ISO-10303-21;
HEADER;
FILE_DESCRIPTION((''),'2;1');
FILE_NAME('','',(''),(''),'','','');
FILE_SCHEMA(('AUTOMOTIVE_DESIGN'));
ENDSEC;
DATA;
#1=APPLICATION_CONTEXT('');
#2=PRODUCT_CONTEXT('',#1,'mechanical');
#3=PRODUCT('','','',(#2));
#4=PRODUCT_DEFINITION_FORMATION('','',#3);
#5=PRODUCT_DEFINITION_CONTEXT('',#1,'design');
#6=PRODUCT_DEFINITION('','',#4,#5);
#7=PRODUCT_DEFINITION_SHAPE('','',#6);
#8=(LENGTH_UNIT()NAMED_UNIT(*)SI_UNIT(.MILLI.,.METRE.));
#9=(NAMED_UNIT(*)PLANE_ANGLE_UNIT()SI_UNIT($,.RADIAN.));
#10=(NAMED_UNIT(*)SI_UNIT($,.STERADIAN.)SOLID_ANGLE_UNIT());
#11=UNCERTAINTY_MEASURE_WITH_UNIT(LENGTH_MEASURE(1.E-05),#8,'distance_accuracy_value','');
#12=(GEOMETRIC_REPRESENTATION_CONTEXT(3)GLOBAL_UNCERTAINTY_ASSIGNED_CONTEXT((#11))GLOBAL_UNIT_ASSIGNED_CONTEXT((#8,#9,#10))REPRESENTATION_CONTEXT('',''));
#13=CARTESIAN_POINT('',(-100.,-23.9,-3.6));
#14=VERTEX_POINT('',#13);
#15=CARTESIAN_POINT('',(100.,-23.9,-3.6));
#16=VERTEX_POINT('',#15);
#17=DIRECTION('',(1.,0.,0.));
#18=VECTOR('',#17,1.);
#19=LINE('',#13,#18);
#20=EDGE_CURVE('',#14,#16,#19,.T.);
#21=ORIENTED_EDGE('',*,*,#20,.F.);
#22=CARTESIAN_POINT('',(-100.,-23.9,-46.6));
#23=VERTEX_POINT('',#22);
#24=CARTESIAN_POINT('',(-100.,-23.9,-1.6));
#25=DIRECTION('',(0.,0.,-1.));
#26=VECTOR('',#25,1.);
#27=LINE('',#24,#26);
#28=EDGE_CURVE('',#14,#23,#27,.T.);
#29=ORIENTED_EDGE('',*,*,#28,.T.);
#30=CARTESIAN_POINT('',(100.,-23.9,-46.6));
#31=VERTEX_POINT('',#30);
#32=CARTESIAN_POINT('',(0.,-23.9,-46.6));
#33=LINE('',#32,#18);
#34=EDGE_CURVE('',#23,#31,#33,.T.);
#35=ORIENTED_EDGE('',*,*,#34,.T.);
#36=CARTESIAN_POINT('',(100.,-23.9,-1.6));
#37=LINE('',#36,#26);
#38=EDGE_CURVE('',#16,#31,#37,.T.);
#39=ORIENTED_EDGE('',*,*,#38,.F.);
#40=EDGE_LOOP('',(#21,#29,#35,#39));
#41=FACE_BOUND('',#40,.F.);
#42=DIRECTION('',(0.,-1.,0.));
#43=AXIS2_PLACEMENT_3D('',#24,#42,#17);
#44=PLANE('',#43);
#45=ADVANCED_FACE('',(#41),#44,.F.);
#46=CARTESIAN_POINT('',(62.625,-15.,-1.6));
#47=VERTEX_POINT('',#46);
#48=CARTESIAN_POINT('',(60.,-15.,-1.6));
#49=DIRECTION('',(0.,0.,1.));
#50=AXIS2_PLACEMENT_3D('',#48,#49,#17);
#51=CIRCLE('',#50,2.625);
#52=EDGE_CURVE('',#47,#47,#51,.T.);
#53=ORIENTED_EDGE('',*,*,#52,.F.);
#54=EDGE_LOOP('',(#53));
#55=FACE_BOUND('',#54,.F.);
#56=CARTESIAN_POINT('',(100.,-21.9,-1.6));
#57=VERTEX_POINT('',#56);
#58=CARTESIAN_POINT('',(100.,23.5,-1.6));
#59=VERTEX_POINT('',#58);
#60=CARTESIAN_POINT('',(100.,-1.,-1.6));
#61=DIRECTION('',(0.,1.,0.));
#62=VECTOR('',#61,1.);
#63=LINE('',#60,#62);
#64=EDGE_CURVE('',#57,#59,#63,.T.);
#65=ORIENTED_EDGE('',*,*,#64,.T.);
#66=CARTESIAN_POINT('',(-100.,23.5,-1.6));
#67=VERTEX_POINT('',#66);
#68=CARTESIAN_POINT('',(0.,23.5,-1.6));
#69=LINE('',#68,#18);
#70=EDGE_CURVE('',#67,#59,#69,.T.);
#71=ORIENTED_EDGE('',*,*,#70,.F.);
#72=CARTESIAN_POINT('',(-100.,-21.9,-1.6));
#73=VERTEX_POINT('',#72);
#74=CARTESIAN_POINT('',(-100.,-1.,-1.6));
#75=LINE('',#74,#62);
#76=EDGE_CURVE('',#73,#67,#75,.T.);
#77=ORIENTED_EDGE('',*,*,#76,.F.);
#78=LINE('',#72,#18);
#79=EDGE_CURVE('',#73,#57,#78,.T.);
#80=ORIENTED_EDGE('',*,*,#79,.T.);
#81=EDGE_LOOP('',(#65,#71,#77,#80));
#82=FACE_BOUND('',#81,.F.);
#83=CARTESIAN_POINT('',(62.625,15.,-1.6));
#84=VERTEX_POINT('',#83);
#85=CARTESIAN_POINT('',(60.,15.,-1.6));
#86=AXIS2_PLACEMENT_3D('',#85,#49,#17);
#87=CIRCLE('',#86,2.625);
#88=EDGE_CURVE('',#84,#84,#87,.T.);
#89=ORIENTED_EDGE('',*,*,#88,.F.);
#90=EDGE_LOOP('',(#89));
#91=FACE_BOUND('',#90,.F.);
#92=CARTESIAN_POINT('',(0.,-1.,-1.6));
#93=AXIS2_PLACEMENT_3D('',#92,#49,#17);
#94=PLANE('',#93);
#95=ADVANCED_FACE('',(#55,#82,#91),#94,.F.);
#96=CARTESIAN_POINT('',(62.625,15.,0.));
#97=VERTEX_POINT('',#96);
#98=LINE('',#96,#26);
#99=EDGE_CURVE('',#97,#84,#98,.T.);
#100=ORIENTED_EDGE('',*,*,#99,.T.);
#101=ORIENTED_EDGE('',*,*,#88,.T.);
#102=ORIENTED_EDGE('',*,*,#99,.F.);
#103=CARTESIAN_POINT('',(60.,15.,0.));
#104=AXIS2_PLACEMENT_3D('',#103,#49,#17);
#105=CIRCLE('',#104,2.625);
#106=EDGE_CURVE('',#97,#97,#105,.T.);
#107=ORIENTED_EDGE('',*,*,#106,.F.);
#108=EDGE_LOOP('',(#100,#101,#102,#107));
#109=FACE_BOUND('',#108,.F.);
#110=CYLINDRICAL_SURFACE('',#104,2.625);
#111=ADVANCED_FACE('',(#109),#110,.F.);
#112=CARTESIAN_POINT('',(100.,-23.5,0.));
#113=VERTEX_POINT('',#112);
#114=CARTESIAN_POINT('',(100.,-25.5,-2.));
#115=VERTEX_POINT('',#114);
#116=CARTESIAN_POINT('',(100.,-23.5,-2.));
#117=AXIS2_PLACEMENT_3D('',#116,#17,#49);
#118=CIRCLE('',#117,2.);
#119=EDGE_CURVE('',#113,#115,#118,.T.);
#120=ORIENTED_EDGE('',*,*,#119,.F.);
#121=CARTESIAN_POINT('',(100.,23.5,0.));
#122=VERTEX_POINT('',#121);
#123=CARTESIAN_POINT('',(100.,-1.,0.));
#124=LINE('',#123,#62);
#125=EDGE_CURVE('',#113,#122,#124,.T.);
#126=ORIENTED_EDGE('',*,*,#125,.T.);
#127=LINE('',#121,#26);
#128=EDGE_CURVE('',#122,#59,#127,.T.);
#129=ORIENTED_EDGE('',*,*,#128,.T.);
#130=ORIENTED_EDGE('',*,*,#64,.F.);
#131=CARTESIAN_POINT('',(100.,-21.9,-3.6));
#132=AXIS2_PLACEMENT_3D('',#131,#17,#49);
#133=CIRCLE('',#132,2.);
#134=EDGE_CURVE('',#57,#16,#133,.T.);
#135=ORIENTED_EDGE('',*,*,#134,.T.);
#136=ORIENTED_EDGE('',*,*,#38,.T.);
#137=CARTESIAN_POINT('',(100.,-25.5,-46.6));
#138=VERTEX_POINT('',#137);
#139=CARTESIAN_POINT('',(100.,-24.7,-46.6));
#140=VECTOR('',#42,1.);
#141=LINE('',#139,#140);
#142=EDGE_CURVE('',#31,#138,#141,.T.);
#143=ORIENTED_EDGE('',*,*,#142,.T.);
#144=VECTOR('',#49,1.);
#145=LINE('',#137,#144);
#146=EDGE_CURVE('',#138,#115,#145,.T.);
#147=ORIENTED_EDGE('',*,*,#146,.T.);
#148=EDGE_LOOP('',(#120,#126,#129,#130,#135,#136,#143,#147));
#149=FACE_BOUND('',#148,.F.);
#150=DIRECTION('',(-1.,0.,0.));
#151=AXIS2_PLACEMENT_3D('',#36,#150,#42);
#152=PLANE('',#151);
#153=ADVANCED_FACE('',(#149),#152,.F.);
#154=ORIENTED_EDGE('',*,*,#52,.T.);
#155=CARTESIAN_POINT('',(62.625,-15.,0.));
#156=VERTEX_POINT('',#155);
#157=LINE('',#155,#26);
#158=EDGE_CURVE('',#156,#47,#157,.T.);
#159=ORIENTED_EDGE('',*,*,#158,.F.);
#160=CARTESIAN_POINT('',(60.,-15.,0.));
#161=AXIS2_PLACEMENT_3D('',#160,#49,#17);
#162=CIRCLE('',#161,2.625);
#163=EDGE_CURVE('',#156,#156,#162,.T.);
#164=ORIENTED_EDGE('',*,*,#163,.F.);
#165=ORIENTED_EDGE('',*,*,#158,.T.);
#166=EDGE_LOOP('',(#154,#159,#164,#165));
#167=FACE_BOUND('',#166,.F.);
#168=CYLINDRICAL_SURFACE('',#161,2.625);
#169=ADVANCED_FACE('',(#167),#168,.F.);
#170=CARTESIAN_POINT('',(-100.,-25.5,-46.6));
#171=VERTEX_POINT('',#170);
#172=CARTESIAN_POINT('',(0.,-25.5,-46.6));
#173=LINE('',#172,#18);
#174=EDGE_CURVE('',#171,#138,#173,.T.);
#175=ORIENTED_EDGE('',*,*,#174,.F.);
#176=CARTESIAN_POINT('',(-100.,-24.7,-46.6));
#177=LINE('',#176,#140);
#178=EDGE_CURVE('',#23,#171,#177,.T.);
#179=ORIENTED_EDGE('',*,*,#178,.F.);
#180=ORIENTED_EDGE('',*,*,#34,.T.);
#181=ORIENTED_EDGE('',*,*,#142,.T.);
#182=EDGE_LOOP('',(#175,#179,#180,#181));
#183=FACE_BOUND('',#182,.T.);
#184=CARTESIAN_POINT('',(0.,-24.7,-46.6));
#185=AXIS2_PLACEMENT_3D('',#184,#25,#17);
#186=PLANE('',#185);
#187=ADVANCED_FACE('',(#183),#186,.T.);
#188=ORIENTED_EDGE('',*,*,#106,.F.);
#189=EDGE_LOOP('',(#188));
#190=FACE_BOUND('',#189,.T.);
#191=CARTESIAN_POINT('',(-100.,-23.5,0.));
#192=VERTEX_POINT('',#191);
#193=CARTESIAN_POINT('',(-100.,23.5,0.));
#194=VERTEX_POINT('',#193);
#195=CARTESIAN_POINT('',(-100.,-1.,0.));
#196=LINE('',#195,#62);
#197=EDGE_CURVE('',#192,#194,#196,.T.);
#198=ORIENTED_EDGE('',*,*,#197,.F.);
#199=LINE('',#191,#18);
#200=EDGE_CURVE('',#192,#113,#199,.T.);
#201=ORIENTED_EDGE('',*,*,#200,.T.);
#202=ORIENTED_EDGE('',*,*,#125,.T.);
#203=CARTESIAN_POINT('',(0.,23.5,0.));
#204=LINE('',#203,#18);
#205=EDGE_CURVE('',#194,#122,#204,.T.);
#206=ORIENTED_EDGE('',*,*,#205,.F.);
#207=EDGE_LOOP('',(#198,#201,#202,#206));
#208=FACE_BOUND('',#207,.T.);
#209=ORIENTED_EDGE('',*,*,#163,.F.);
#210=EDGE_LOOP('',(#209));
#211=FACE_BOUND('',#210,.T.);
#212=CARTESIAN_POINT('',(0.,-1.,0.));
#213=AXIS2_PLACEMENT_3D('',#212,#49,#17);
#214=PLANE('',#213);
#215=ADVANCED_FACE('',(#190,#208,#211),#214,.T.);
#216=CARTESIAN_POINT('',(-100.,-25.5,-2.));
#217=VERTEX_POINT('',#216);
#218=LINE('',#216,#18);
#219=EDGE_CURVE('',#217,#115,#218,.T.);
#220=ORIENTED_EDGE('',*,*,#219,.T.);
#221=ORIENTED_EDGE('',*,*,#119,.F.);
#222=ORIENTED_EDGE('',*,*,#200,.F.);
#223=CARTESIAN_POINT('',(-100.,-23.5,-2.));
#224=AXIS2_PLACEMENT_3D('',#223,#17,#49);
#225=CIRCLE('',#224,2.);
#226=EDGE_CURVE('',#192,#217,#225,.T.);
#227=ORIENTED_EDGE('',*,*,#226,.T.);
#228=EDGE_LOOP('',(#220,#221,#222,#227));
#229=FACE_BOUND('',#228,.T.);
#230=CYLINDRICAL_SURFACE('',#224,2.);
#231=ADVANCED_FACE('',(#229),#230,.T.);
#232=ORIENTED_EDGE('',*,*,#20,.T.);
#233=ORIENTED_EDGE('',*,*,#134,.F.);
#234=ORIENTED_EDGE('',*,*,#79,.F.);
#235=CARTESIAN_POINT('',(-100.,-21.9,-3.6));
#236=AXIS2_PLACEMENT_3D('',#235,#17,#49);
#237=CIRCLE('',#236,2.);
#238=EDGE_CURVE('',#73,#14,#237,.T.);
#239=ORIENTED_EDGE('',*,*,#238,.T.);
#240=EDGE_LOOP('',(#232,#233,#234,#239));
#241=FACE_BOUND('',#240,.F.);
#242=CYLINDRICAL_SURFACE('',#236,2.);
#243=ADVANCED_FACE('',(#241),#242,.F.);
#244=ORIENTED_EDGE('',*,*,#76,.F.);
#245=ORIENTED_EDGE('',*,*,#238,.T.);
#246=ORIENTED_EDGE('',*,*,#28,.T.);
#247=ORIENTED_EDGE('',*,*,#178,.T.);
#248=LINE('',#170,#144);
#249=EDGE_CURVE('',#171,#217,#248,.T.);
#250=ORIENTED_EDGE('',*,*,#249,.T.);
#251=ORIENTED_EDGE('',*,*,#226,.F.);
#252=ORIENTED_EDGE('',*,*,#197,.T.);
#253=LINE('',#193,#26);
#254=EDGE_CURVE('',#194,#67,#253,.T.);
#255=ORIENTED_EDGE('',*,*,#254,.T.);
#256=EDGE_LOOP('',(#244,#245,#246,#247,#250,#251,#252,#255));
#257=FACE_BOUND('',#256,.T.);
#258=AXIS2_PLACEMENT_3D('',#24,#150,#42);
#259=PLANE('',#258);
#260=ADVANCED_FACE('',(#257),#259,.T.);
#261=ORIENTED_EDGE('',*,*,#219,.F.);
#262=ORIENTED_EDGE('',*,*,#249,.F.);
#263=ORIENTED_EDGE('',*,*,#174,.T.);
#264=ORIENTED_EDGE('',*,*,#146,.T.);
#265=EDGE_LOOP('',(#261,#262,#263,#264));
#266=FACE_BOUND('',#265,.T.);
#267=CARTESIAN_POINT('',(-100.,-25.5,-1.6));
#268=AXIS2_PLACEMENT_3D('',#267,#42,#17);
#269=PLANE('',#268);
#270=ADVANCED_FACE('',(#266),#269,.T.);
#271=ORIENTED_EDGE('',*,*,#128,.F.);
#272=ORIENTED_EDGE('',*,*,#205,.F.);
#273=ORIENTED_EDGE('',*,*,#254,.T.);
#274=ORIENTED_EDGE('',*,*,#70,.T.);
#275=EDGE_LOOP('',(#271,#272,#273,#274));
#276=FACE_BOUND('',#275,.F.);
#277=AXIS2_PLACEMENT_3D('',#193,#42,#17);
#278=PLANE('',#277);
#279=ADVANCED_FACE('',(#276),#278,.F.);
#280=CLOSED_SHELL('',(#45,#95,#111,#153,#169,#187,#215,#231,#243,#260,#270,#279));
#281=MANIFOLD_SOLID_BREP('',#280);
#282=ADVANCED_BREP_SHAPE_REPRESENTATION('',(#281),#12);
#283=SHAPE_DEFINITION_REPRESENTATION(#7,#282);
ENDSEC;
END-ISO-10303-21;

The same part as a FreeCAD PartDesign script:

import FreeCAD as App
import Part
import Sketcher


def edges_at(feature, points):
    """Names of the edges that pass closest to the given points."""
    edges = feature.Shape.Edges
    near = lambda p: min(range(len(edges)), key=lambda i: edges[i].distToShape(Part.Vertex(*p))[0])
    return sorted({f"Edge{near(p) + 1}" for p in points})


def add_polygon(sketch, points):
    """Adds a closed chain of lines whose ends are joined by coincident constraints."""
    first, n = sketch.GeometryCount, len(points)
    for a, b in zip(points, points[1:] + points[:1]):
        sketch.addGeometry(Part.LineSegment(App.Vector(*a, 0), App.Vector(*b, 0)), False)
    for i in range(n):
        sketch.addConstraint(Sketcher.Constraint("Coincident", first + i, 2, first + (i + 1) % n, 1))

doc = App.newDocument("Part")
body = doc.addObject("PartDesign::Body", "Body")

# Sketch on XY plane
sketch1 = body.newObject("Sketcher::SketchObject", "Sketch")
sketch1.AttachmentSupport = (doc.getObject("XY_Plane"), [""])
sketch1.MapMode = "FlatFace"
add_polygon(sketch1, [(-100, 23.5), (-100, -25.5), (100, -25.5), (100, 23.5)])  # lines 0-3
sketch1.addGeometry(Part.Circle(App.Vector(60, -15, 0), App.Vector(0, 0, 1), 2.6), False)  # 4
sketch1.addGeometry(Part.Circle(App.Vector(60, 15, 0), App.Vector(0, 0, 1), 2.6), False)  # 5
sketch1.addConstraint(Sketcher.Constraint("Vertical", 0))
sketch1.addConstraint(Sketcher.Constraint("Horizontal", 1))
sketch1.addConstraint(Sketcher.Constraint("Vertical", 2))
sketch1.addConstraint(Sketcher.Constraint("Horizontal", 3))
sketch1.addConstraint(Sketcher.Constraint("Equal", 4, 5))
sketch1.addConstraint(Sketcher.Constraint("Symmetric", 4, 3, 5, 3, -1))
sketch1.addConstraint(Sketcher.Constraint("Diameter", 4, 5.25))
sketch1.addConstraint(Sketcher.Constraint("DistanceX", 1, 1, 1, 2, 200.0))
sketch1.addConstraint(Sketcher.Constraint("DistanceY", 0, 2, 0, 1, 49.0))
sketch1.addConstraint(Sketcher.Constraint("DistanceX", -1, 1, 4, 3, 60.0))
sketch1.addConstraint(Sketcher.Constraint("DistanceY", 4, 3, -1, 1, 15.0))
sketch1.addConstraint(Sketcher.Constraint("DistanceX", 0, 2, -1, 1, 100.0))
sketch1.addConstraint(Sketcher.Constraint("DistanceY", 0, 2, -1, 1, 25.5))
pad1 = body.newObject("PartDesign::Pad", "Pad")
pad1.Profile = sketch1
pad1.Length = 1.6
pad1.Reversed = True

# Sketch on XY plane
sketch2 = body.newObject("Sketcher::SketchObject", "Sketch001")
sketch2.AttachmentSupport = (doc.getObject("XY_Plane"), [""])
sketch2.MapMode = "FlatFace"
sketch2.AttachmentOffset = App.Placement(App.Vector(0, 0, -1.6), App.Rotation())
add_polygon(sketch2, [(-100, -25.5), (-100, -23.9), (100, -23.9), (100, -25.5)])  # lines 0-3
sketch2.addConstraint(Sketcher.Constraint("Vertical", 0))
sketch2.addConstraint(Sketcher.Constraint("Horizontal", 1))
sketch2.addConstraint(Sketcher.Constraint("Vertical", 2))
sketch2.addConstraint(Sketcher.Constraint("Horizontal", 3))
sketch2.addConstraint(Sketcher.Constraint("DistanceX", 1, 1, 1, 2, 200.0))
sketch2.addConstraint(Sketcher.Constraint("DistanceY", 0, 1, 0, 2, 1.6))
sketch2.addConstraint(Sketcher.Constraint("DistanceX", 0, 2, -1, 1, 100.0))
sketch2.addConstraint(Sketcher.Constraint("DistanceY", 0, 2, -1, 1, 23.9))
pad2 = body.newObject("PartDesign::Pad", "Pad001")
pad2.Profile = sketch2
pad2.Length = 45
pad2.Reversed = True
doc.recompute()

fillet = body.newObject("PartDesign::Fillet", "Fillet")
fillet.Base = (pad2, edges_at(pad2, [(0, -23.9, -1.6), (0, -25.5, 0)]))
fillet.Radius = 2

doc.recompute()
